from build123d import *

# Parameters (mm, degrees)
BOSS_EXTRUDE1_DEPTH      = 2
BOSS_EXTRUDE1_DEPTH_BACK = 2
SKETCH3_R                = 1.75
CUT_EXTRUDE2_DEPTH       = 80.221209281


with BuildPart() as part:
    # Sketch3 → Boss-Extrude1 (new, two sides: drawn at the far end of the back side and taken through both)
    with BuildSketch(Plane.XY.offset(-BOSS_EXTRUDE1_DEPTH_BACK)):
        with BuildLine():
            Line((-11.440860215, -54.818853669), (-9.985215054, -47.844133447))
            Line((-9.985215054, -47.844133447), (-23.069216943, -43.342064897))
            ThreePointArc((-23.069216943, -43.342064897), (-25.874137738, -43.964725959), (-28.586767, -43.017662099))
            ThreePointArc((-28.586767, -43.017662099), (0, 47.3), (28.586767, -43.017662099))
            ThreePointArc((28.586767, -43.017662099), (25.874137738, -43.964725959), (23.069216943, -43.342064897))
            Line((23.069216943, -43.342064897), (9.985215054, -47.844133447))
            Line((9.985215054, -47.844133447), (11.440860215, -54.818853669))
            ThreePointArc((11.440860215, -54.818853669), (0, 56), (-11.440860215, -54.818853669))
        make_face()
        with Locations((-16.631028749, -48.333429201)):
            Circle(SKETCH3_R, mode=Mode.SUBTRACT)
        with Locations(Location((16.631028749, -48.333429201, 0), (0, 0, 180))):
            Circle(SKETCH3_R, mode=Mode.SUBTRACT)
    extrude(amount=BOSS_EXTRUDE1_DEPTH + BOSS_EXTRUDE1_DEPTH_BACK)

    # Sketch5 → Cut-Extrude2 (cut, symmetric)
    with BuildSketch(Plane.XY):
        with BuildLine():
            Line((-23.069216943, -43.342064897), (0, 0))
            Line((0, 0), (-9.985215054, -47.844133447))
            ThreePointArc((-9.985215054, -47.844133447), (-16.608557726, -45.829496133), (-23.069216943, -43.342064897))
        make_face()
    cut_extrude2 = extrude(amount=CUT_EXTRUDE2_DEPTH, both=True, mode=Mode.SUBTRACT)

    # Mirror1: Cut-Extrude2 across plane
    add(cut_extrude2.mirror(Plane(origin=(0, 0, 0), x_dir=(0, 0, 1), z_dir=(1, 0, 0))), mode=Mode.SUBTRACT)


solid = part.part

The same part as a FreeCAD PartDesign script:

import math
import FreeCAD as App
import Part
import Sketcher

V = App.Vector
Q = App.Units.Quantity

doc = App.newDocument("Part")
params = doc.addObject("Spreadsheet::Sheet", "Params")
for row, (alias, value) in enumerate([
    ("sketch1_radius", "56 mm"),
    ("sketch1_diameter", "3.5 mm"),
    ("sketch1_radius2", "5.25 mm"),
    ("pad1_length", "2 mm"),
    ("pad1_length2", "2 mm"),
    ("pocket1_length", "160.442419 mm"),
], start=1):
    params.set(f"A{row}", alias)
    params.set(f"B{row}", "=" + value)
    params.setAlias(f"B{row}", alias)

body = doc.addObject("PartDesign::Body", "Body")

# Sketch on XY plane
sketch1 = body.newObject("Sketcher::SketchObject", "Sketch")
sketch1.AttachmentSupport = (doc.getObject("XY_Plane"), [""])
sketch1.MapMode = "FlatFace"
sketch1.addGeometry([
    Part.LineSegment(V(-11.4, -54.8, 0), V(-10, -47.8, 0)),  # 0
    Part.LineSegment(V(-10, -47.8, 0), V(-23.1, -43.3, 0)),  # 1
    Part.ArcOfCircle(Part.Circle(V(-25.6, -38.7, 0), V(0, 0, 1), 5.2), math.radians(-125), math.radians(-62)),  # 2
    Part.ArcOfCircle(Part.Circle(V(0, -2.4, 0), V(0, 0, 1), 49.7), math.radians(-55), math.radians(235)),  # 3
    Part.ArcOfCircle(Part.Circle(V(25.6, -38.7, 0), V(0, 0, 1), 5.2), math.radians(-118), math.radians(-55)),  # 4
    Part.LineSegment(V(23.1, -43.3, 0), V(10, -47.8, 0)),  # 5
    Part.LineSegment(V(10, -47.8, 0), V(11.4, -54.8, 0)),  # 6
    Part.ArcOfCircle(Part.Circle(V(0, 0, 0), V(0, 0, 1), 56), math.radians(-78), math.radians(258)),  # 7
    Part.Circle(V(-16.6, -48.3, 0), V(0, 0, 1), 1.8),  # 8
    Part.Circle(V(16.6, -48.3, 0), V(0, 0, 1), 1.8),  # 9
], False)
sketch1.addConstraint([
    Sketcher.Constraint("Coincident", 0, 2, 1, 1),
    Sketcher.Constraint("Coincident", 1, 2, 2, 2),
    Sketcher.Constraint("Tangent", 2, 1, 3, 2),
    Sketcher.Constraint("Tangent", 3, 1, 4, 2),
    Sketcher.Constraint("Coincident", 4, 1, 5, 1),
    Sketcher.Constraint("Coincident", 5, 2, 6, 1),
    Sketcher.Constraint("Coincident", 6, 2, 7, 1),
    Sketcher.Constraint("Coincident", 7, 2, 0, 1),
    Sketcher.Constraint("Coincident", 7, 3, -1, 1),
    Sketcher.Constraint("Equal", 2, 4),
    Sketcher.Constraint("Equal", 8, 9),
    Sketcher.Constraint("Symmetric", 2, 3, 4, 3, -2),
    Sketcher.Constraint("Symmetric", 8, 3, 9, 3, -2),
    Sketcher.Constraint("Symmetric", 0, 2, 5, 2, -2),
    Sketcher.Constraint("Horizontal", 1, 2, 4, 1),
    Sketcher.Constraint("Horizontal", 6, 2, 7, 2),
    Sketcher.Constraint("Radius", 7, Q("56 mm")),
    Sketcher.Constraint("Diameter", 8, Q("3.5 mm")),
    Sketcher.Constraint("Radius", 2, Q("5.25 mm")),
    Sketcher.Constraint("Radius", 3, Q("49.682881 mm")),
    Sketcher.Constraint("Distance", 0, Q("7.125 mm")),
    Sketcher.Constraint("DistanceX", 1, 2, 0, 2, Q("13.084002 mm")),
    Sketcher.Constraint("DistanceY", 3, 3, -1, 1, Q("2.382881 mm")),
    Sketcher.Constraint("DistanceX", 8, 3, -1, 1, Q("16.631029 mm")),
    Sketcher.Constraint("DistanceY", 8, 3, -1, 1, Q("48.333429 mm")),
    Sketcher.Constraint("DistanceX", -1, 1, 6, 2, Q("11.44086 mm")),
    Sketcher.Constraint("DistanceX", 2, 3, 8, 3, Q("8.934969 mm")),
    Sketcher.Constraint("DistanceX", 2, 3, 1, 2, Q("2.496781 mm")),
])
sketch1.setExpression("Constraints[16]", "Params.sketch1_radius")
sketch1.setExpression("Constraints[17]", "Params.sketch1_diameter")
sketch1.setExpression("Constraints[18]", "Params.sketch1_radius2")
pad1 = body.newObject("PartDesign::Pad", "Pad")
pad1.Profile = sketch1
pad1.Type = "TwoLengths"
pad1.setExpression("Length", "Params.pad1_length")
pad1.setExpression("Length2", "Params.pad1_length2")

# Sketch on XY plane
sketch2 = body.newObject("Sketcher::SketchObject", "Sketch001")
sketch2.AttachmentSupport = (doc.getObject("XY_Plane"), [""])
sketch2.MapMode = "FlatFace"
sketch2.addGeometry([
    Part.LineSegment(V(0, 0, 0), V(-23, -43, 0)),
    Part.ArcOfCircle(Part.Circle(V(15, 45, 0), V(0, 0, 1), 96), math.radians(-113.13), math.radians(-104.85)),
    Part.LineSegment(V(-10, -48, 0), V(0, 0, 0)),
], False)
sketch2.addConstraint([
    Sketcher.Constraint("Coincident", 0, 2, 1, 1),
    Sketcher.Constraint("Coincident", 1, 2, 2, 1),
    Sketcher.Constraint("Coincident", 2, 2, 0, 1),
    Sketcher.Constraint("Coincident", 2, 2, -1, 1),
    Sketcher.Constraint("Distance", 2, Q("48.875 mm")),
    Sketcher.Constraint("Radius", 1, Q("95.854863 mm")),
    Sketcher.Constraint("DistanceX", 0, 2, 1, 2, Q("13.084002 mm")),
    Sketcher.Constraint("DistanceX", 0, 2, 1, 3, Q("37.64866 mm")),
    Sketcher.Constraint("Distance", 0, Q("49.099118 mm")),
])
pocket1 = body.newObject("PartDesign::Pocket", "Pocket")
pocket1.Profile = sketch2
pocket1.setExpression("Length", "Params.pocket1_length")
pocket1.Midplane = True
doc.recompute()

mirrored = body.newObject("PartDesign::Mirrored", "Mirrored")
mirrored.Originals = [pocket1]
mirrored.MirrorPlane = (doc.getObject("YZ_Plane"), [""])
body.Tip = mirrored

doc.recompute()
